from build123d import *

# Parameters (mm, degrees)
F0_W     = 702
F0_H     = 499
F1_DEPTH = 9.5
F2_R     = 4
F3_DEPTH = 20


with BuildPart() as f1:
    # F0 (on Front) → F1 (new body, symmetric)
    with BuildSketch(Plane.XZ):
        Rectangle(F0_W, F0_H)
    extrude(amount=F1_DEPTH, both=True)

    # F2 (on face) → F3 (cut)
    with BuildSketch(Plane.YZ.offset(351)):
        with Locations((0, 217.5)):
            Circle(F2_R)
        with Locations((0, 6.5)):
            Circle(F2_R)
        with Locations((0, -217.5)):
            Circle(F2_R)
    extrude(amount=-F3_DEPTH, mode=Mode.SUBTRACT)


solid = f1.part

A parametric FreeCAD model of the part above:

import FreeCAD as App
import Part
import Sketcher
from FreeCAD import Vector

doc = App.newDocument("Part")
params = doc.addObject("Spreadsheet::Sheet", "Params")
for row, (alias, value) in enumerate([
    ("sketch1_width", "702 mm"),
    ("sketch1_height", "499 mm"),
    ("pad1_length", "19 mm"),
    ("sketch2_diameter", "8 mm"),
    ("pocket1_length", "20 mm"),
], start=1):
    params.set(f"A{row}", alias)
    params.set(f"B{row}", "=" + value)
    params.setAlias(f"B{row}", alias)

body = doc.addObject("PartDesign::Body", "Body")

# Sketch on XZ plane
sketch1 = body.newObject("Sketcher::SketchObject", "Sketch")
sketch1.AttachmentSupport = (doc.getObject("XZ_Plane"), [""])
sketch1.MapMode = "FlatFace"
sketch1.addGeometry([
    Part.LineSegment(Vector(-351, 249.5, 0), Vector(-351, -249.5, 0)),
    Part.LineSegment(Vector(-351, -249.5, 0), Vector(351, -249.5, 0)),
    Part.LineSegment(Vector(351, -249.5, 0), Vector(351, 249.5, 0)),
    Part.LineSegment(Vector(351, 249.5, 0), Vector(-351, 249.5, 0)),
], False)
sketch1.addConstraint([
    Sketcher.Constraint("Coincident", 0, 2, 1, 1),
    Sketcher.Constraint("Coincident", 1, 2, 2, 1),
    Sketcher.Constraint("Coincident", 2, 2, 3, 1),
    Sketcher.Constraint("Coincident", 3, 2, 0, 1),
    Sketcher.Constraint("Vertical", 0),
    Sketcher.Constraint("Horizontal", 1),
    Sketcher.Constraint("Vertical", 2),
    Sketcher.Constraint("Horizontal", 3),
    Sketcher.Constraint("Symmetric", 0, 2, 2, 2, -1, 1),
    Sketcher.Constraint("DistanceX", 1, 1, 1, 2, 702.0),
    Sketcher.Constraint("DistanceY", 0, 2, 0, 1, 499.0),
])
sketch1.setExpression("Constraints[9]", "Params.sketch1_width")
sketch1.setExpression("Constraints[10]", "Params.sketch1_height")
pad1 = body.newObject("PartDesign::Pad", "Pad")
pad1.Profile = sketch1
pad1.setExpression("Length", "Params.pad1_length")
pad1.Midplane = True

# Sketch on YZ plane
sketch2 = body.newObject("Sketcher::SketchObject", "Sketch001")
sketch2.AttachmentSupport = (doc.getObject("YZ_Plane"), [""])
sketch2.MapMode = "FlatFace"
sketch2.AttachmentOffset = App.Placement(Vector(0, 0, 351), App.Rotation())
sketch2.addGeometry([
    Part.Circle(Vector(0, 217.5, 0), Vector(0, 0, 1), 4),
    Part.Circle(Vector(0, 6.5, 0), Vector(0, 0, 1), 4),
    Part.Circle(Vector(0, -217.5, 0), Vector(0, 0, 1), 4),
], False)
sketch2.addConstraint([
    Sketcher.Constraint("Equal", 0, 1),
    Sketcher.Constraint("Equal", 1, 2),
    Sketcher.Constraint("Symmetric", 0, 3, 2, 3, -1, 1),
    Sketcher.Constraint("PointOnObject", 0, 3, -2),
    Sketcher.Constraint("PointOnObject", 1, 3, -2),
    Sketcher.Constraint("Diameter", 0, 8.0),
    Sketcher.Constraint("DistanceY", 1, 3, 0, 3, 211.0),
    Sketcher.Constraint("DistanceY", 2, 3, 1, 3, 224.0),
])
sketch2.setExpression("Constraints[5]", "Params.sketch2_diameter")
pocket1 = body.newObject("PartDesign::Pocket", "Pocket")
pocket1.Profile = sketch2
pocket1.setExpression("Length", "Params.pocket1_length")

doc.recompute()
